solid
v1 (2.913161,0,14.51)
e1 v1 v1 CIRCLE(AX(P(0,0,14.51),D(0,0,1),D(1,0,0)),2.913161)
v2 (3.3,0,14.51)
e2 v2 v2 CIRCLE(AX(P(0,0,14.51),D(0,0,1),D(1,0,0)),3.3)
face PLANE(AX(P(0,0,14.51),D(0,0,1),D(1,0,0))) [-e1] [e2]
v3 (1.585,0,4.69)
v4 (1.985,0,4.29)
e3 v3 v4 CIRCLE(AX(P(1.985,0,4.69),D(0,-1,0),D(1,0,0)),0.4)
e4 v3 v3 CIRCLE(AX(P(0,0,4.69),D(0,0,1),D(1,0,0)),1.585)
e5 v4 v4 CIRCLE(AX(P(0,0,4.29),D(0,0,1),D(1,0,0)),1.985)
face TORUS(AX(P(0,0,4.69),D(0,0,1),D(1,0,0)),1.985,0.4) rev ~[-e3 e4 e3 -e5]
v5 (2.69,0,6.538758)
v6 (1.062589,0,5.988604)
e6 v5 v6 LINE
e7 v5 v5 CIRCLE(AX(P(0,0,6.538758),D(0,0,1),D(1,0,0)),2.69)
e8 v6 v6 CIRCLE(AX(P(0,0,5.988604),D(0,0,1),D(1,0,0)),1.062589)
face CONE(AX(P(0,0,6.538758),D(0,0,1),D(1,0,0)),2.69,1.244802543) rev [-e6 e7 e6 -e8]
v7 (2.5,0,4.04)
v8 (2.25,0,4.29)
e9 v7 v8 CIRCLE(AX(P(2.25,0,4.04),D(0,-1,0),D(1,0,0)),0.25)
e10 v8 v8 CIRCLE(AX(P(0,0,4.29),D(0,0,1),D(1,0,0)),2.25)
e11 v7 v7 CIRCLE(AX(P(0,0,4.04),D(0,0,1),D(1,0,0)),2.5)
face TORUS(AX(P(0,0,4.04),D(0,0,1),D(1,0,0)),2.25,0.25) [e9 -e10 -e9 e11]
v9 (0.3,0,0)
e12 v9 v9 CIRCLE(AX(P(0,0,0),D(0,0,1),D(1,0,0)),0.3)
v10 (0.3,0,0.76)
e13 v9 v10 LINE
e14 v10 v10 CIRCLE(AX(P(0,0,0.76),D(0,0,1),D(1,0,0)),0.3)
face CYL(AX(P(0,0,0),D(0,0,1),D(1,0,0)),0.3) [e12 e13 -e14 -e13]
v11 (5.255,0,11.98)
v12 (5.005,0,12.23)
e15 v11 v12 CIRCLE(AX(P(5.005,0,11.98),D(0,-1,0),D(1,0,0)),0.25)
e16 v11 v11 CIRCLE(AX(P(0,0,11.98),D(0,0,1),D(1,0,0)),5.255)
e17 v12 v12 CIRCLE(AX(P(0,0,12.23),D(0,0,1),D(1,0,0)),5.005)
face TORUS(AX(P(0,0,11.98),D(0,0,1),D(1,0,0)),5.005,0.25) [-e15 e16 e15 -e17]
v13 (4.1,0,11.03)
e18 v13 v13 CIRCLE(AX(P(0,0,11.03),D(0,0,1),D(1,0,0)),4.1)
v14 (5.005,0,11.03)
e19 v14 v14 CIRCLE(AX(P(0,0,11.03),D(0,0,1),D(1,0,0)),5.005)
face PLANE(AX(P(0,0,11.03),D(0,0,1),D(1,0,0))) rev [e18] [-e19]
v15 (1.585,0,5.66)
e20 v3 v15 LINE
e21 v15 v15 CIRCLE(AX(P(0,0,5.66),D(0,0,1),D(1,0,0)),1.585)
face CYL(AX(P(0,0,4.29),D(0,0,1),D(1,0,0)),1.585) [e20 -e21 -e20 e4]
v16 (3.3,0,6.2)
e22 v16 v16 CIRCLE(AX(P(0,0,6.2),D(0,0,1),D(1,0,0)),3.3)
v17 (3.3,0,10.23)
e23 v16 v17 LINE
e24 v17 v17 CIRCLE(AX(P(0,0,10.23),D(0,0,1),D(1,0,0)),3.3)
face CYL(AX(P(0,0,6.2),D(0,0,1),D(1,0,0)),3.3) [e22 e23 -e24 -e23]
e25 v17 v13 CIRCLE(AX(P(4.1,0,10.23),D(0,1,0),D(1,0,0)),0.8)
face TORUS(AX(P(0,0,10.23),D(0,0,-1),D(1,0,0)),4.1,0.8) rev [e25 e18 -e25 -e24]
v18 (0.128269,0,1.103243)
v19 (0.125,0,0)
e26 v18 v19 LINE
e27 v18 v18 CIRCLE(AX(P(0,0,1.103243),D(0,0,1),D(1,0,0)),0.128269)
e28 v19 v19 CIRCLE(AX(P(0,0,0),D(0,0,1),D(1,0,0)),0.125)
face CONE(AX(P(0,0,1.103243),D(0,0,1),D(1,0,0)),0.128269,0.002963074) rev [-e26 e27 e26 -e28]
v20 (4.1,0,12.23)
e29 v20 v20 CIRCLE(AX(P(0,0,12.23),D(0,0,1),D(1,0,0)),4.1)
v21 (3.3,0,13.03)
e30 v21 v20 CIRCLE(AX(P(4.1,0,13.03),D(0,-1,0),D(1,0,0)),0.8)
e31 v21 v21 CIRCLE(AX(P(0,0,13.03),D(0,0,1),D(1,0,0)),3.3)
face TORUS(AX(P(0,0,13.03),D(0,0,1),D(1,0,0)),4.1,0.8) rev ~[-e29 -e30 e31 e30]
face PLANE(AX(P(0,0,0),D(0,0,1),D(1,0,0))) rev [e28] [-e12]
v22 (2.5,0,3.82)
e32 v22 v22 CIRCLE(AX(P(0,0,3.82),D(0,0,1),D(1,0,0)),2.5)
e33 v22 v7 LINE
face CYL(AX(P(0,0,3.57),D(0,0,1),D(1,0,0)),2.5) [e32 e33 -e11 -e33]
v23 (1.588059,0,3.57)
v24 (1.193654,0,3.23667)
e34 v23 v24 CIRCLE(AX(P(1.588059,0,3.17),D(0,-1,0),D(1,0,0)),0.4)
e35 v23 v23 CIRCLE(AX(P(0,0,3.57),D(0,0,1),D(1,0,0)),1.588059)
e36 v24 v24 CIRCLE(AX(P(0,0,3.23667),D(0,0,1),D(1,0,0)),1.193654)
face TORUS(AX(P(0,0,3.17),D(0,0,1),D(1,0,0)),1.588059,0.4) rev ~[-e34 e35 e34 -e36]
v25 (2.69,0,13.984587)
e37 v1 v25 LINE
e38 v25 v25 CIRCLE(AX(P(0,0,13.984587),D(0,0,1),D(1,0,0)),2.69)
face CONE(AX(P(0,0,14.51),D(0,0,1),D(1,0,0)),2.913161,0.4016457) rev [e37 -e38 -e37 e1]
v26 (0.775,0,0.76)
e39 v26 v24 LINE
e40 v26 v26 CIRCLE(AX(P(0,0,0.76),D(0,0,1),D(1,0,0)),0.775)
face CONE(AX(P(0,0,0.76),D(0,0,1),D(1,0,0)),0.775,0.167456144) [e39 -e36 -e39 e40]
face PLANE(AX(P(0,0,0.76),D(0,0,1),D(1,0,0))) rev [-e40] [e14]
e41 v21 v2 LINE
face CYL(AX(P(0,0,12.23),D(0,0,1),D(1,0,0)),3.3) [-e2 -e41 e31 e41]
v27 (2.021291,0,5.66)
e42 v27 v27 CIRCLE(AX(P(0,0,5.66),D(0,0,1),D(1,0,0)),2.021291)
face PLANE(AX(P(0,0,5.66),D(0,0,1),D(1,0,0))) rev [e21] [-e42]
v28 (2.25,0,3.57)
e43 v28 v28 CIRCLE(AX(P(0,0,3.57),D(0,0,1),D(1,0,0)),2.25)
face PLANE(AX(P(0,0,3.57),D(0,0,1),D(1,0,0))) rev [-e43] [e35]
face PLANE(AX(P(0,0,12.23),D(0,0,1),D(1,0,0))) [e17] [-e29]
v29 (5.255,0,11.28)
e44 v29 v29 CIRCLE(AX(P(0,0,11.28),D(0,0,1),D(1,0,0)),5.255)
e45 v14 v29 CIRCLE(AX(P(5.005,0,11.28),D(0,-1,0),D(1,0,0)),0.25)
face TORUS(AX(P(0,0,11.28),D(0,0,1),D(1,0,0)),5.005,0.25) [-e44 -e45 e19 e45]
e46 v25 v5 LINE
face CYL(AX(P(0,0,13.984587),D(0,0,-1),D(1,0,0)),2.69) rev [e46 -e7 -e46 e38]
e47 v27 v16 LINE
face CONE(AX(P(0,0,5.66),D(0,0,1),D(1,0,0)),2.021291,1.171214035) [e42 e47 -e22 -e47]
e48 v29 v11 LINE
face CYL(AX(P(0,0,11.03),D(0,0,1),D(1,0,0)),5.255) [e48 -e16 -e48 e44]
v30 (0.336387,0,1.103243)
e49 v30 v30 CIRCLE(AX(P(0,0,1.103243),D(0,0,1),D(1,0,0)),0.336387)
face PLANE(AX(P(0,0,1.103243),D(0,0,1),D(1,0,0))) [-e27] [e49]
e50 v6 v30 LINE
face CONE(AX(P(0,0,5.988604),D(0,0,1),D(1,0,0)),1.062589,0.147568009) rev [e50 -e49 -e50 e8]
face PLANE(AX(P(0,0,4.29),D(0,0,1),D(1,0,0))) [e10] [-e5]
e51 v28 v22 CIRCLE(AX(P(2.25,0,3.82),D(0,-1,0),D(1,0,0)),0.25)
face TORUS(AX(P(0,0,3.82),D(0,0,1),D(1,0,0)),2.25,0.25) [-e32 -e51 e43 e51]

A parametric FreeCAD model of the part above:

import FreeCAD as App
import Part
import Sketcher

V = App.Vector
Q = App.Units.Quantity


def edges_at(feature, points):
    """Names of the edges that pass closest to the given points."""
    edges = feature.Shape.Edges
    near = lambda p: min(range(len(edges)), key=lambda i: edges[i].distToShape(Part.Vertex(*p))[0])
    return sorted({f"Edge{near(p) + 1}" for p in points})

doc = App.newDocument("Part")
body = doc.addObject("PartDesign::Body", "Body")

# Sketch on XZ plane
sketch1 = body.newObject("Sketcher::SketchObject", "Sketch")
sketch1.AttachmentSupport = (doc.getObject("XZ_Plane"), [""])
sketch1.MapMode = "FlatFace"
sketch1.addGeometry(Part.LineSegment(V(0.13, 1.1, 0), V(0.12, 0, 0)), False)
sketch1.addGeometry(Part.LineSegment(V(0.12, 0, 0), V(0.3, 0, 0)), False)
sketch1.addGeometry(Part.LineSegment(V(0.3, 0, 0), V(0.3, 0.76, 0)), False)
sketch1.addGeometry(Part.LineSegment(V(0.3, 0.76, 0), V(0.78, 0.76, 0)), False)
sketch1.addGeometry(Part.LineSegment(V(0.78, 0.76, 0), V(1.25, 3.57, 0)), False)
sketch1.addGeometry(Part.LineSegment(V(1.25, 3.57, 0), V(2.5, 3.57, 0)), False)
sketch1.addGeometry(Part.LineSegment(V(2.5, 3.57, 0), V(2.5, 4.29, 0)), False)
sketch1.addGeometry(Part.LineSegment(V(2.5, 4.29, 0), V(1.58, 4.29, 0)), False)
sketch1.addGeometry(Part.LineSegment(V(1.58, 4.29, 0), V(1.58, 5.66, 0)), False)
sketch1.addGeometry(Part.LineSegment(V(1.58, 5.66, 0), V(2.02, 5.66, 0)), False)
sketch1.addGeometry(Part.LineSegment(V(2.02, 5.66, 0), V(3.3, 6.2, 0)), False)
sketch1.addGeometry(Part.LineSegment(V(3.3, 6.2, 0), V(3.3, 11.03, 0)), False)
sketch1.addGeometry(Part.LineSegment(V(3.3, 11.03, 0), V(5.25, 11.03, 0)), False)
sketch1.addGeometry(Part.LineSegment(V(5.25, 11.03, 0), V(5.25, 12.23, 0)), False)
sketch1.addGeometry(Part.LineSegment(V(5.25, 12.23, 0), V(3.3, 12.23, 0)), False)
sketch1.addGeometry(Part.LineSegment(V(3.3, 12.23, 0), V(3.3, 14.51, 0)), False)
sketch1.addGeometry(Part.LineSegment(V(3.3, 14.51, 0), V(2.91, 14.51, 0)), False)
sketch1.addGeometry(Part.LineSegment(V(2.91, 14.51, 0), V(2.69, 13.98, 0)), False)
sketch1.addGeometry(Part.LineSegment(V(2.69, 13.98, 0), V(2.69, 6.54, 0)), False)
sketch1.addGeometry(Part.LineSegment(V(2.69, 6.54, 0), V(1.06, 5.99, 0)), False)
sketch1.addGeometry(Part.LineSegment(V(1.06, 5.99, 0), V(0.34, 1.1, 0)), False)
sketch1.addGeometry(Part.LineSegment(V(0.34, 1.1, 0), V(0.13, 1.1, 0)), False)
sketch1.addConstraint(Sketcher.Constraint("Coincident", 0, 2, 1, 1))
sketch1.addConstraint(Sketcher.Constraint("Coincident", 1, 2, 2, 1))
sketch1.addConstraint(Sketcher.Constraint("Coincident", 2, 2, 3, 1))
sketch1.addConstraint(Sketcher.Constraint("Coincident", 3, 2, 4, 1))
sketch1.addConstraint(Sketcher.Constraint("Coincident", 4, 2, 5, 1))
sketch1.addConstraint(Sketcher.Constraint("Coincident", 5, 2, 6, 1))
sketch1.addConstraint(Sketcher.Constraint("Coincident", 6, 2, 7, 1))
sketch1.addConstraint(Sketcher.Constraint("Coincident", 7, 2, 8, 1))
sketch1.addConstraint(Sketcher.Constraint("Coincident", 8, 2, 9, 1))
sketch1.addConstraint(Sketcher.Constraint("Coincident", 9, 2, 10, 1))
sketch1.addConstraint(Sketcher.Constraint("Coincident", 10, 2, 11, 1))
sketch1.addConstraint(Sketcher.Constraint("Coincident", 11, 2, 12, 1))
sketch1.addConstraint(Sketcher.Constraint("Coincident", 12, 2, 13, 1))
sketch1.addConstraint(Sketcher.Constraint("Coincident", 13, 2, 14, 1))
sketch1.addConstraint(Sketcher.Constraint("Coincident", 14, 2, 15, 1))
sketch1.addConstraint(Sketcher.Constraint("Coincident", 15, 2, 16, 1))
sketch1.addConstraint(Sketcher.Constraint("Coincident", 16, 2, 17, 1))
sketch1.addConstraint(Sketcher.Constraint("Coincident", 17, 2, 18, 1))
sketch1.addConstraint(Sketcher.Constraint("Coincident", 18, 2, 19, 1))
sketch1.addConstraint(Sketcher.Constraint("Coincident", 19, 2, 20, 1))
sketch1.addConstraint(Sketcher.Constraint("Coincident", 20, 2, 21, 1))
sketch1.addConstraint(Sketcher.Constraint("Coincident", 21, 2, 0, 1))
sketch1.addConstraint(Sketcher.Constraint("Horizontal", 1))
sketch1.addConstraint(Sketcher.Constraint("Vertical", 2))
sketch1.addConstraint(Sketcher.Constraint("Horizontal", 3))
sketch1.addConstraint(Sketcher.Constraint("Horizontal", 5))
sketch1.addConstraint(Sketcher.Constraint("Vertical", 6))
sketch1.addConstraint(Sketcher.Constraint("Horizontal", 7))
sketch1.addConstraint(Sketcher.Constraint("Vertical", 8))
sketch1.addConstraint(Sketcher.Constraint("Horizontal", 9))
sketch1.addConstraint(Sketcher.Constraint("Vertical", 11))
sketch1.addConstraint(Sketcher.Constraint("Horizontal", 12))
sketch1.addConstraint(Sketcher.Constraint("Vertical", 13))
sketch1.addConstraint(Sketcher.Constraint("Horizontal", 14))
sketch1.addConstraint(Sketcher.Constraint("Vertical", 15))
sketch1.addConstraint(Sketcher.Constraint("Horizontal", 16))
sketch1.addConstraint(Sketcher.Constraint("Vertical", 18))
sketch1.addConstraint(Sketcher.Constraint("Horizontal", 21))
sketch1.addConstraint(Sketcher.Constraint("PointOnObject", 0, 2, -1))
sketch1.addConstraint(Sketcher.Constraint("Vertical", 11, 2, 14, 2))
sketch1.addConstraint(Sketcher.Constraint("DistanceY", 13, 1, 13, 2, Q("1.2 mm")))
sketch1.addConstraint(Sketcher.Constraint("DistanceX", 5, 1, 5, 2, Q("1.25 mm")))
sketch1.addConstraint(Sketcher.Constraint("DistanceY", 2, 1, 2, 2, Q("0.76 mm")))
sketch1.addConstraint(Sketcher.Constraint("DistanceY", 6, 1, 6, 2, Q("0.72 mm")))
sketch1.addConstraint(Sketcher.Constraint("DistanceY", 8, 1, 8, 2, Q("1.37 mm")))
sketch1.addConstraint(Sketcher.Constraint("DistanceY", 11, 1, 11, 2, Q("4.83 mm")))
sketch1.addConstraint(Sketcher.Constraint("DistanceY", 15, 1, 15, 2, Q("2.28 mm")))
sketch1.addConstraint(Sketcher.Constraint("DistanceX", -1, 1, 1, 2, Q("0.3 mm")))
sketch1.addConstraint(Sketcher.Constraint("DistanceX", -1, 1, 5, 2, Q("2.5 mm")))
sketch1.addConstraint(Sketcher.Constraint("DistanceX", -1, 1, 10, 2, Q("3.3 mm")))
sketch1.addConstraint(Sketcher.Constraint("DistanceY", -1, 1, 10, 2, Q("6.2 mm")))
sketch1.addConstraint(Sketcher.Constraint("DistanceY", 3, 2, 8, 2, Q("4.9 mm")))
sketch1.addConstraint(Sketcher.Constraint("DistanceX", 1, 1, 1, 2, Q("0.175 mm")))
sketch1.addConstraint(Sketcher.Constraint("DistanceX", 3, 1, 3, 2, Q("0.475 mm")))
sketch1.addConstraint(Sketcher.Constraint("DistanceX", 7, 2, 7, 1, Q("0.915 mm")))
sketch1.addConstraint(Sketcher.Constraint("DistanceX", 12, 1, 12, 2, Q("1.955 mm")))
sketch1.addConstraint(Sketcher.Constraint("DistanceX", -1, 1, 17, 2, Q("2.69 mm")))
sketch1.addConstraint(Sketcher.Constraint("DistanceX", 9, 1, 9, 2, Q("0.436291 mm")))
sketch1.addConstraint(Sketcher.Constraint("DistanceX", 16, 2, 16, 1, Q("0.386839 mm")))
sketch1.addConstraint(Sketcher.Constraint("DistanceY", 18, 2, 18, 1, Q("7.445829 mm")))
sketch1.addConstraint(Sketcher.Constraint("Distance", 17, Q("0.570841 mm")))
sketch1.addConstraint(Sketcher.Constraint("Distance", 20, Q("4.939041 mm")))
sketch1.addConstraint(Sketcher.Constraint("DistanceX", 21, 2, 21, 1, Q("0.208118 mm")))
sketch1.addConstraint(Sketcher.Constraint("DistanceX", -1, 1, 19, 2, Q("1.062589 mm")))
sketch1.addConstraint(Sketcher.Constraint("DistanceX", -1, 1, 21, 2, Q("0.128269 mm")))
sketch1.addConstraint(Sketcher.Constraint("Distance", 0, Q("1.103248 mm")))
revolution = body.newObject("PartDesign::Revolution", "Revolution")
revolution.Profile = sketch1
revolution.ReferenceAxis = (sketch1, ["V_Axis"])
revolution.Angle = 360
doc.recompute()

fillet = body.newObject("PartDesign::Fillet", "Fillet")
fillet.Base = (revolution, edges_at(revolution, [
    (-5.255, 0, 12.23),
    (-5.255, 0, 11.03),
    (-2.5, 0, 4.29),
    (-2.5, 0, 3.57),
]))
fillet.Radius = 0.25
doc.recompute()

fillet2 = body.newObject("PartDesign::Fillet", "Fillet001")
fillet2.Base = (fillet, edges_at(fillet, [(-3.3, 0, 12.23), (-3.3, 0, 11.03)]))
fillet2.Radius = 0.8
doc.recompute()

fillet3 = body.newObject("PartDesign::Fillet", "Fillet002")
fillet3.Base = (fillet2, edges_at(fillet2, [(-1.585, 0, 4.29), (-1.25, 0, 3.57)]))
fillet3.Radius = 0.4

doc.recompute()
